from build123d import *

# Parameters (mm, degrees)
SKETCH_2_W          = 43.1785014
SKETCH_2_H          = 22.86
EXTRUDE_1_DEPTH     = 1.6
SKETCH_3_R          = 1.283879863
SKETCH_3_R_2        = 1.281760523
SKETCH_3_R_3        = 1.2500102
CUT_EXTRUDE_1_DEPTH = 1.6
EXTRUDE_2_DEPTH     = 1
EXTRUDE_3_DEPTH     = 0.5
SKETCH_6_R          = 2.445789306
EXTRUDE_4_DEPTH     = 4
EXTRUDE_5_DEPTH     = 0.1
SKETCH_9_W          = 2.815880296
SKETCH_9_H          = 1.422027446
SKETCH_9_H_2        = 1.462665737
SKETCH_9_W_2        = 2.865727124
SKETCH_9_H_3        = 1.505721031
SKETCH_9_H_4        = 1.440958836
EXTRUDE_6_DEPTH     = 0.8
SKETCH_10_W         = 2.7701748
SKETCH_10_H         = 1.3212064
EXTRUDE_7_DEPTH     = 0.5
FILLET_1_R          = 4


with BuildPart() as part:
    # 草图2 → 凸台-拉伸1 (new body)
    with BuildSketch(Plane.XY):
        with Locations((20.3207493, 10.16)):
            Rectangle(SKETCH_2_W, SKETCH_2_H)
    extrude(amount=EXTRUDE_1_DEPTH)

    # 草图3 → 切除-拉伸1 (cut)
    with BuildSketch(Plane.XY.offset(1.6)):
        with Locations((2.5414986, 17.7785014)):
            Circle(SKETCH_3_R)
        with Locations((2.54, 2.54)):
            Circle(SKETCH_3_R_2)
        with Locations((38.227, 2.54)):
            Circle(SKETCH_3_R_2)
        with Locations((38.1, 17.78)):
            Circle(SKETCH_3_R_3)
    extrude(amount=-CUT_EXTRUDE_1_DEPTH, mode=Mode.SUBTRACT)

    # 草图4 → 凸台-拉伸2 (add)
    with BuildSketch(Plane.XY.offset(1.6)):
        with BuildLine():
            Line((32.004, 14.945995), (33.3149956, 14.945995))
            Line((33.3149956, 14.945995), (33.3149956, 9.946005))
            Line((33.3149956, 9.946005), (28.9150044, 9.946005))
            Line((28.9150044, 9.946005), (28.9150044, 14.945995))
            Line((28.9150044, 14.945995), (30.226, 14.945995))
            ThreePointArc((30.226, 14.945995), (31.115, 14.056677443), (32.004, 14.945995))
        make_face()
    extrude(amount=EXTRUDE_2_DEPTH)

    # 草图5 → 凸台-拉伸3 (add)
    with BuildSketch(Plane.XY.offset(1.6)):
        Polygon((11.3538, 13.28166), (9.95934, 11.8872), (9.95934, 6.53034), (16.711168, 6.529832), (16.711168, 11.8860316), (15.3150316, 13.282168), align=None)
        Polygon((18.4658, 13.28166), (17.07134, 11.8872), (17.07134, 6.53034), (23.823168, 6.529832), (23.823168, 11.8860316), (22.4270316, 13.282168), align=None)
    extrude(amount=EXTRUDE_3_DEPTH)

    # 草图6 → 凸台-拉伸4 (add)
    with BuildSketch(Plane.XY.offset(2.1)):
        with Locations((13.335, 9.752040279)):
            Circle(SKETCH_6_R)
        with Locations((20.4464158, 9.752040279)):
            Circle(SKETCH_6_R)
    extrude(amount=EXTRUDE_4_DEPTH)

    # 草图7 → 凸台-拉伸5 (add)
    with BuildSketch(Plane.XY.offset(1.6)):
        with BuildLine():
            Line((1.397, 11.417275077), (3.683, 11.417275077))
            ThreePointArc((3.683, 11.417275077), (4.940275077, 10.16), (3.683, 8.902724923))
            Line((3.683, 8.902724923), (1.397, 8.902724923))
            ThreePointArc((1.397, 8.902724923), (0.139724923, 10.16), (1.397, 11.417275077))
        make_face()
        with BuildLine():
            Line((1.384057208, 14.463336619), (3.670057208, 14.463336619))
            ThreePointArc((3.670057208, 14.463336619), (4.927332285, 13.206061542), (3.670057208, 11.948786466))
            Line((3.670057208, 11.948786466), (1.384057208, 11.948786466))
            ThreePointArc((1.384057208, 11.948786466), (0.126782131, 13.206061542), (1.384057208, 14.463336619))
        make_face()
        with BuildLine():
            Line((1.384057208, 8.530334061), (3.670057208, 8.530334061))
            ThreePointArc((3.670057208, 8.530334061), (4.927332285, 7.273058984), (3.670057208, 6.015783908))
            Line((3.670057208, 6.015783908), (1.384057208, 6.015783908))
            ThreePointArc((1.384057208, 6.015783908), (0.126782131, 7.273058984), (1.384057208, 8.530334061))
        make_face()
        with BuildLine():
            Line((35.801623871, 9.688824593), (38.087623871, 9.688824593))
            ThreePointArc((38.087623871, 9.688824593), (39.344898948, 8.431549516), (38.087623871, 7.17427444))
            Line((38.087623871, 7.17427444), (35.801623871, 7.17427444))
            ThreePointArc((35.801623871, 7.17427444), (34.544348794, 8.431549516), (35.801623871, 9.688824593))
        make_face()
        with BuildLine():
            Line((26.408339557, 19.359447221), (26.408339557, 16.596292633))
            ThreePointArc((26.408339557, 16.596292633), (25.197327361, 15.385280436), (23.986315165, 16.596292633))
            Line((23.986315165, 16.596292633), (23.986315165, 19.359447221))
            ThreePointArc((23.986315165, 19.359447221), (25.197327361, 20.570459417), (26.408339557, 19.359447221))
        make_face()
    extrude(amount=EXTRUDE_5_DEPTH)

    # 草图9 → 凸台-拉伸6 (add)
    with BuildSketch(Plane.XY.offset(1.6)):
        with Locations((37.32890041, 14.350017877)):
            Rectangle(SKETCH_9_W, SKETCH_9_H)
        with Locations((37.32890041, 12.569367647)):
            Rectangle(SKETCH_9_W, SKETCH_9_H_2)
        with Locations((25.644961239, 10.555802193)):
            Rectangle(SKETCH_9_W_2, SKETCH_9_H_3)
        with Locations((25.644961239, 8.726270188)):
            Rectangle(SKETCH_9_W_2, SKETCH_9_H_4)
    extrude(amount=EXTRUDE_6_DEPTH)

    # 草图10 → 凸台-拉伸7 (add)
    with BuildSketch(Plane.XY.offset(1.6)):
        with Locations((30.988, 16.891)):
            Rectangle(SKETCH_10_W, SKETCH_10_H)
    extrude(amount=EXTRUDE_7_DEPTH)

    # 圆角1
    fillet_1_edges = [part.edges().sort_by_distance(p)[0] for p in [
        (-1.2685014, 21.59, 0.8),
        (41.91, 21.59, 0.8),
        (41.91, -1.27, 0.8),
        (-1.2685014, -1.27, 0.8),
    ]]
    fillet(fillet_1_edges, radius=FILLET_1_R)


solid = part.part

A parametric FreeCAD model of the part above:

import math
import FreeCAD as App
import Part
import Sketcher
from FreeCAD import Vector
Q = App.Units.Quantity


def edges_at(feature, points):
    """Names of the edges that pass closest to the given points."""
    edges = feature.Shape.Edges
    near = lambda p: min(range(len(edges)), key=lambda i: edges[i].distToShape(Part.Vertex(*p))[0])
    return sorted({f"Edge{near(p) + 1}" for p in points})


def add_polygon(sketch, points):
    """Adds a closed chain of lines whose ends are joined by coincident constraints."""
    first, n = sketch.GeometryCount, len(points)
    for a, b in zip(points, points[1:] + points[:1]):
        sketch.addGeometry(Part.LineSegment(App.Vector(*a, 0), App.Vector(*b, 0)), False)
    for i in range(n):
        sketch.addConstraint(Sketcher.Constraint("Coincident", first + i, 2, first + (i + 1) % n, 1))

doc = App.newDocument("Part")
params = doc.addObject("Spreadsheet::Sheet", "Params")
for row, (alias, value) in enumerate([
    ("sketch1_height", "22.86 mm"),
    ("pad1_length", "1.6 mm"),
    ("pocket1_length", "1.6 mm"),
    ("pad2_length", "1 mm"),
    ("pad3_length", "0.5 mm"),
    ("pad4_length", "4 mm"),
    ("pad5_length", "0.1 mm"),
    ("pad6_length", "0.8 mm"),
    ("pad7_length", "0.5 mm"),
    ("fillet_radius", "4 mm"),
], start=1):
    params.set(f"A{row}", alias)
    params.set(f"B{row}", "=" + value)
    params.setAlias(f"B{row}", alias)

body = doc.addObject("PartDesign::Body", "Body")

sketch1 = body.newObject("Sketcher::SketchObject", "Sketch")
sketch1.AttachmentSupport = (doc.getObject("XY_Plane"), [""])
sketch1.MapMode = "FlatFace"
add_polygon(sketch1, [(-1, 22), (-1, -1), (42, -1), (42, 22)])
sketch1.addConstraint([
    Sketcher.Constraint("Vertical", 0),
    Sketcher.Constraint("Horizontal", 1),
    Sketcher.Constraint("Vertical", 2),
    Sketcher.Constraint("Horizontal", 3),
    Sketcher.Constraint("DistanceY", 0, 2, 0, 1, 22.86),
    Sketcher.Constraint("DistanceY", 0, 2, -1, 1, 1.27),
    Sketcher.Constraint("DistanceX", -1, 1, 1, 2, 41.91),
    Sketcher.Constraint("DistanceX", 1, 1, 1, 2, 43.178501),
])
sketch1.setExpression("Constraints[8]", "Params.sketch1_height")
pad1 = body.newObject("PartDesign::Pad", "Pad")
pad1.Profile = sketch1
pad1.setExpression("Length", "Params.pad1_length")

sketch2 = body.newObject("Sketcher::SketchObject", "Sketch001")
sketch2.AttachmentSupport = (doc.getObject("XY_Plane"), [""])
sketch2.MapMode = "FlatFace"
sketch2.AttachmentOffset = App.Placement(Vector(0, 0, 1.6), App.Rotation())
sketch2.addGeometry([
    Part.Circle(Vector(2.5, 17.8, 0), Vector(0, 0, 1), 1.3),
    Part.Circle(Vector(2.5, 2.5, 0), Vector(0, 0, 1), 1.3),
    Part.Circle(Vector(38.2, 2.5, 0), Vector(0, 0, 1), 1.3),
    Part.Circle(Vector(38.1, 17.8, 0), Vector(0, 0, 1), 1.3),
], False)
sketch2.addConstraint([
    Sketcher.Constraint("Equal", 1, 2),
    Sketcher.Constraint("Horizontal", 1, 3, 2, 3),
    Sketcher.Constraint("DistanceX", -1, 1, 3, 3, 38.1),
    Sketcher.Constraint("Diameter", 0, 2.56776),
    Sketcher.Constraint("Diameter", 1, 2.563521),
    Sketcher.Constraint("Diameter", 3, 2.50002),
    Sketcher.Constraint("DistanceX", -1, 1, 1, 3, 2.54),
    Sketcher.Constraint("DistanceY", -1, 1, 1, 3, 2.54),
    Sketcher.Constraint("DistanceY", -1, 1, 3, 3, 17.78),
    Sketcher.Constraint("DistanceX", -1, 1, 2, 3, 38.227),
    Sketcher.Constraint("DistanceX", -1, 1, 0, 3, 2.541499),
    Sketcher.Constraint("DistanceY", -1, 1, 0, 3, 17.778501),
])
pocket1 = body.newObject("PartDesign::Pocket", "Pocket")
pocket1.Profile = sketch2
pocket1.setExpression("Length", "Params.pocket1_length")

sketch3 = body.newObject("Sketcher::SketchObject", "Sketch002")
sketch3.AttachmentSupport = (doc.getObject("XY_Plane"), [""])
sketch3.MapMode = "FlatFace"
sketch3.AttachmentOffset = App.Placement(Vector(0, 0, 1.6), App.Rotation())
sketch3.addGeometry([
    Part.LineSegment(Vector(33.3, 14.9, 0), Vector(32, 14.9, 0)),
    Part.ArcOfCircle(Part.Circle(Vector(31.1, 14.9, 0), Vector(0, 0, 1), 0.9), math.radians(180), math.radians(360)),
    Part.LineSegment(Vector(30.2, 14.9, 0), Vector(28.9, 14.9, 0)),
    Part.LineSegment(Vector(28.9, 14.9, 0), Vector(28.9, 9.9, 0)),
    Part.LineSegment(Vector(28.9, 9.9, 0), Vector(33.3, 9.9, 0)),
    Part.LineSegment(Vector(33.3, 9.9, 0), Vector(33.3, 14.9, 0)),
], False)
sketch3.addConstraint([
    Sketcher.Constraint("Coincident", 0, 2, 1, 2),
    Sketcher.Constraint("Coincident", 1, 1, 2, 1),
    Sketcher.Constraint("Coincident", 2, 2, 3, 1),
    Sketcher.Constraint("Coincident", 3, 2, 4, 1),
    Sketcher.Constraint("Coincident", 4, 2, 5, 1),
    Sketcher.Constraint("Coincident", 5, 2, 0, 1),
    Sketcher.Constraint("Horizontal", 0),
    Sketcher.Constraint("Horizontal", 2),
    Sketcher.Constraint("Vertical", 3),
    Sketcher.Constraint("Horizontal", 4),
    Sketcher.Constraint("Vertical", 5),
    Sketcher.Constraint("Horizontal", 0, 2, 1, 1),
    Sketcher.Constraint("Equal", 0, 2),
    Sketcher.Constraint("Radius", 1, 0.889),
    Sketcher.Constraint("DistanceX", -1, 1, 1, 3, 31.115),
    Sketcher.Constraint("DistanceX", 4, 1, 4, 2, 4.399991),
    Sketcher.Constraint("DistanceY", 3, 2, 3, 1, 4.99999),
    Sketcher.Constraint("DistanceY", -1, 1, 1, 3, 14.945678),
    Sketcher.Constraint("DistanceY", -1, 1, 0, 2, 14.945995),
])
pad2 = body.newObject("PartDesign::Pad", "Pad001")
pad2.Profile = sketch3
pad2.setExpression("Length", "Params.pad2_length")

sketch4 = body.newObject("Sketcher::SketchObject", "Sketch003")
sketch4.AttachmentSupport = (doc.getObject("XY_Plane"), [""])
sketch4.MapMode = "FlatFace"
sketch4.AttachmentOffset = App.Placement(Vector(0, 0, 1.6), App.Rotation())
add_polygon(sketch4, [(11.4, 13.3), (10, 11.9), (10, 6.5), (16.7, 6.5), (16.7, 11.9), (15.3, 13.3)])
add_polygon(sketch4, [(18.5, 13.3), (17.1, 11.9), (17.1, 6.5), (23.8, 6.5), (23.8, 11.9), (22.4, 13.3)])
sketch4.addConstraint([
    Sketcher.Constraint("Vertical", 1),
    Sketcher.Constraint("Vertical", 3),
    Sketcher.Constraint("Vertical", 7),
    Sketcher.Constraint("Vertical", 9),
    Sketcher.Constraint("Perpendicular", 0, 4),
    Sketcher.Constraint("Perpendicular", 4, 6),
    Sketcher.Constraint("Parallel", 2, 8),
    Sketcher.Constraint("Perpendicular", 6, 10),
    Sketcher.Constraint("Parallel", 5, 11),
    Sketcher.Constraint("Horizontal", 0, 2, 6, 2),
    Sketcher.Constraint("Horizontal", 1, 2, 7, 2),
    Sketcher.Constraint("Horizontal", 3, 2, 9, 2),
    Sketcher.Constraint("Horizontal", 4, 2, 10, 2),
    Sketcher.Constraint("Equal", 2, 8),
    Sketcher.Constraint("Angle", 0, Q("-135 deg")),
    Sketcher.Constraint("DistanceY", 3, 1, 3, 2, 5.3562),
    Sketcher.Constraint("DistanceX", 0, 2, 6, 2, 7.112),
    Sketcher.Constraint("DistanceY", 1, 2, 1, 1, 5.35686),
    Sketcher.Constraint("DistanceY", -1, 1, 0, 2, 11.8872),
    Sketcher.Constraint("DistanceX", -1, 1, 5, 2, 11.3538),
    Sketcher.Constraint("Distance", 2, 6.751828),
    Sketcher.Constraint("Distance", 5, 3.961232),
    Sketcher.Constraint("DistanceX", -1, 1, 0, 2, 9.95934),
    Sketcher.Constraint("DistanceY", -1, 1, 3, 2, 11.886032),
])
pad3 = body.newObject("PartDesign::Pad", "Pad002")
pad3.Profile = sketch4
pad3.setExpression("Length", "Params.pad3_length")

sketch5 = body.newObject("Sketcher::SketchObject", "Sketch004")
sketch5.AttachmentSupport = (doc.getObject("XY_Plane"), [""])
sketch5.MapMode = "FlatFace"
sketch5.AttachmentOffset = App.Placement(Vector(0, 0, 2.1), App.Rotation())
sketch5.addGeometry([
    Part.Circle(Vector(13.3, 9.8, 0), Vector(0, 0, 1), 2.4),
    Part.Circle(Vector(20.4, 9.8, 0), Vector(0, 0, 1), 2.4),
], False)
sketch5.addConstraint([
    Sketcher.Constraint("Equal", 0, 1),
    Sketcher.Constraint("Horizontal", 0, 3, 1, 3),
    Sketcher.Constraint("Diameter", 0, 4.891579),
    Sketcher.Constraint("DistanceX", -1, 1, 0, 3, 13.335),
    Sketcher.Constraint("DistanceY", -1, 1, 0, 3, 9.75204),
    Sketcher.Constraint("DistanceX", -1, 1, 1, 3, 20.446416),
])
pad4 = body.newObject("PartDesign::Pad", "Pad003")
pad4.Profile = sketch5
pad4.setExpression("Length", "Params.pad4_length")

sketch6 = body.newObject("Sketcher::SketchObject", "Sketch005")
sketch6.AttachmentSupport = (doc.getObject("XY_Plane"), [""])
sketch6.MapMode = "FlatFace"
sketch6.AttachmentOffset = App.Placement(Vector(0, 0, 1.6), App.Rotation())
sketch6.addGeometry([
    Part.LineSegment(Vector(3.7, 11.4, 0), Vector(1.4, 11.4, 0)),
    Part.ArcOfCircle(Part.Circle(Vector(1.4, 10.2, 0), Vector(0, 0, 1), 1.3), math.radians(90), math.radians(270)),
    Part.LineSegment(Vector(1.4, 8.9, 0), Vector(3.7, 8.9, 0)),
    Part.ArcOfCircle(Part.Circle(Vector(3.7, 10.2, 0), Vector(0, 0, 1), 1.3), math.radians(-90), math.radians(90)),
    Part.LineSegment(Vector(3.7, 14.5, 0), Vector(1.4, 14.5, 0)),
    Part.ArcOfCircle(Part.Circle(Vector(1.4, 13.2, 0), Vector(0, 0, 1), 1.3), math.radians(90), math.radians(270)),
    Part.LineSegment(Vector(1.4, 11.9, 0), Vector(3.7, 11.9, 0)),
    Part.ArcOfCircle(Part.Circle(Vector(3.7, 13.2, 0), Vector(0, 0, 1), 1.3), math.radians(-90), math.radians(90)),
    Part.LineSegment(Vector(3.7, 8.5, 0), Vector(1.4, 8.5, 0)),
    Part.ArcOfCircle(Part.Circle(Vector(1.4, 7.3, 0), Vector(0, 0, 1), 1.3), math.radians(90), math.radians(270)),
    Part.LineSegment(Vector(1.4, 6, 0), Vector(3.7, 6, 0)),
    Part.ArcOfCircle(Part.Circle(Vector(3.7, 7.3, 0), Vector(0, 0, 1), 1.3), math.radians(-90), math.radians(90)),
    Part.LineSegment(Vector(38.1, 9.7, 0), Vector(35.8, 9.7, 0)),
    Part.ArcOfCircle(Part.Circle(Vector(35.8, 8.4, 0), Vector(0, 0, 1), 1.3), math.radians(90), math.radians(270)),
    Part.LineSegment(Vector(35.8, 7.2, 0), Vector(38.1, 7.2, 0)),
    Part.ArcOfCircle(Part.Circle(Vector(38.1, 8.4, 0), Vector(0, 0, 1), 1.3), math.radians(-90), math.radians(90)),
    Part.LineSegment(Vector(26.4, 16.6, 0), Vector(26.4, 19.4, 0)),
    Part.ArcOfCircle(Part.Circle(Vector(25.2, 19.4, 0), Vector(0, 0, 1), 1.2), math.radians(0), math.radians(180)),
    Part.LineSegment(Vector(24, 19.4, 0), Vector(24, 16.6, 0)),
    Part.ArcOfCircle(Part.Circle(Vector(25.2, 16.6, 0), Vector(0, 0, 1), 1.2), math.radians(180), math.radians(360)),
], False)
sketch6.addConstraint([
    Sketcher.Constraint("Tangent", 0, 2, 1, 1),
    Sketcher.Constraint("Tangent", 1, 2, 2, 1),
    Sketcher.Constraint("Tangent", 2, 2, 3, 1),
    Sketcher.Constraint("Tangent", 3, 2, 0, 1),
    Sketcher.Constraint("Tangent", 4, 2, 5, 1),
    Sketcher.Constraint("Tangent", 5, 2, 6, 1),
    Sketcher.Constraint("Tangent", 6, 2, 7, 1),
    Sketcher.Constraint("Tangent", 7, 2, 4, 1),
    Sketcher.Constraint("Tangent", 8, 2, 9, 1),
    Sketcher.Constraint("Tangent", 9, 2, 10, 1),
    Sketcher.Constraint("Tangent", 10, 2, 11, 1),
    Sketcher.Constraint("Tangent", 11, 2, 8, 1),
    Sketcher.Constraint("Tangent", 12, 2, 13, 1),
    Sketcher.Constraint("Tangent", 13, 2, 14, 1),
    Sketcher.Constraint("Tangent", 14, 2, 15, 1),
    Sketcher.Constraint("Tangent", 15, 2, 12, 1),
    Sketcher.Constraint("Tangent", 16, 2, 17, 1),
    Sketcher.Constraint("Tangent", 17, 2, 18, 1),
    Sketcher.Constraint("Tangent", 18, 2, 19, 1),
    Sketcher.Constraint("Tangent", 19, 2, 16, 1),
    Sketcher.Constraint("Horizontal", 0),
    Sketcher.Constraint("Horizontal", 2),
    Sketcher.Constraint("Horizontal", 4),
    Sketcher.Constraint("Horizontal", 6),
    Sketcher.Constraint("Horizontal", 8),
    Sketcher.Constraint("Horizontal", 10),
    Sketcher.Constraint("Horizontal", 12),
    Sketcher.Constraint("Horizontal", 14),
    Sketcher.Constraint("Vertical", 16),
    Sketcher.Constraint("Vertical", 18),
    Sketcher.Constraint("Equal", 3, 5),
    Sketcher.Constraint("Equal", 7, 9),
    Sketcher.Constraint("Equal", 11, 13),
    Sketcher.Constraint("Vertical", 5, 3, 9, 3),
    Sketcher.Constraint("Vertical", 7, 3, 11, 3),
    Sketcher.Constraint("Equal", 2, 4),
    Sketcher.Constraint("Equal", 10, 12),
    Sketcher.Constraint("DistanceX", 0, 2, 0, 1, 2.286),
    Sketcher.Constraint("DistanceY", -1, 1, 1, 3, 10.16),
    Sketcher.Constraint("DistanceX", -1, 1, 1, 3, 1.397),
    Sketcher.Constraint("Radius", 1, 1.257275),
    Sketcher.Constraint("Radius", 17, 1.211012),
    Sketcher.Constraint("DistanceY", 16, 1, 16, 2, 2.763155),
    Sketcher.Constraint("DistanceY", -1, 1, 5, 3, 13.206062),
    Sketcher.Constraint("DistanceY", -1, 1, 9, 3, 7.273059),
    Sketcher.Constraint("DistanceY", -1, 1, 13, 3, 8.43155),
    Sketcher.Constraint("DistanceX", -1, 1, 16, 2, 26.40834),
    Sketcher.Constraint("DistanceX", 7, 3, 17, 3, 21.52727),
    Sketcher.Constraint("DistanceY", 7, 3, 19, 3, 3.390231),
    Sketcher.Constraint("DistanceX", 17, 2, 12, 2, 11.815309),
])
pad5 = body.newObject("PartDesign::Pad", "Pad004")
pad5.Profile = sketch6
pad5.setExpression("Length", "Params.pad5_length")

sketch7 = body.newObject("Sketcher::SketchObject", "Sketch006")
sketch7.AttachmentSupport = (doc.getObject("XY_Plane"), [""])
sketch7.MapMode = "FlatFace"
sketch7.AttachmentOffset = App.Placement(Vector(0, 0, 1.6), App.Rotation())
add_polygon(sketch7, [(35.9, 15.1), (35.9, 13.6), (38.7, 13.6), (38.7, 15.1)])
add_polygon(sketch7, [(35.9, 13.3), (35.9, 11.8), (38.7, 11.8), (38.7, 13.3)])
add_polygon(sketch7, [(24.2, 11.3), (24.2, 9.8), (27.1, 9.8), (27.1, 11.3)])
add_polygon(sketch7, [(24.2, 9.4), (24.2, 8), (27.1, 8), (27.1, 9.4)])
sketch7.addConstraint([
    Sketcher.Constraint("Vertical", 0),
    Sketcher.Constraint("Horizontal", 1),
    Sketcher.Constraint("Vertical", 2),
    Sketcher.Constraint("Horizontal", 3),
    Sketcher.Constraint("Vertical", 4),
    Sketcher.Constraint("Horizontal", 5),
    Sketcher.Constraint("Vertical", 6),
    Sketcher.Constraint("Horizontal", 7),
    Sketcher.Constraint("Vertical", 8),
    Sketcher.Constraint("Horizontal", 9),
    Sketcher.Constraint("Vertical", 10),
    Sketcher.Constraint("Horizontal", 11),
    Sketcher.Constraint("Vertical", 12),
    Sketcher.Constraint("Horizontal", 13),
    Sketcher.Constraint("Vertical", 14),
    Sketcher.Constraint("Horizontal", 15),
    Sketcher.Constraint("Vertical", 3, 2, 4, 2),
    Sketcher.Constraint("Vertical", 2, 2, 5, 2),
    Sketcher.Constraint("Vertical", 11, 2, 12, 2),
    Sketcher.Constraint("Vertical", 10, 2, 13, 2),
    Sketcher.Constraint("DistanceX", 1, 1, 1, 2, 2.81588),
    Sketcher.Constraint("DistanceY", 8, 2, 8, 1, 1.505721),
    Sketcher.Constraint("DistanceY", 12, 2, 12, 1, 1.440959),
    Sketcher.Constraint("DistanceY", -1, 1, 6, 2, 13.300701),
    Sketcher.Constraint("DistanceX", 9, 1, 9, 2, 2.865727),
    Sketcher.Constraint("DistanceY", 0, 2, 0, 1, 1.422027),
    Sketcher.Constraint("DistanceY", 4, 2, 4, 1, 1.462666),
    Sketcher.Constraint("DistanceX", -1, 1, 0, 2, 35.92096),
    Sketcher.Constraint("DistanceY", -1, 1, 2, 2, 15.061032),
    Sketcher.Constraint("DistanceY", -1, 1, 8, 2, 9.802942),
    Sketcher.Constraint("DistanceY", -1, 1, 12, 2, 8.005791),
    Sketcher.Constraint("DistanceX", -1, 1, 8, 2, 24.212098),
])
pad6 = body.newObject("PartDesign::Pad", "Pad005")
pad6.Profile = sketch7
pad6.setExpression("Length", "Params.pad6_length")

sketch8 = body.newObject("Sketcher::SketchObject", "Sketch007")
sketch8.AttachmentSupport = (doc.getObject("XY_Plane"), [""])
sketch8.MapMode = "FlatFace"
sketch8.AttachmentOffset = App.Placement(Vector(0, 0, 1.6), App.Rotation())
add_polygon(sketch8, [(29.6, 17.6), (29.6, 16.2), (32.4, 16.2), (32.4, 17.6)])
sketch8.addConstraint([
    Sketcher.Constraint("Vertical", 0),
    Sketcher.Constraint("Horizontal", 1),
    Sketcher.Constraint("Vertical", 2),
    Sketcher.Constraint("Horizontal", 3),
    Sketcher.Constraint("DistanceX", 1, 1, 1, 2, 2.770175),
    Sketcher.Constraint("DistanceY", 0, 2, 0, 1, 1.321206),
    Sketcher.Constraint("DistanceX", -1, 1, 0, 2, 29.602913),
    Sketcher.Constraint("DistanceY", -1, 1, 0, 2, 16.230397),
])
pad7 = body.newObject("PartDesign::Pad", "Pad006")
pad7.Profile = sketch8
pad7.setExpression("Length", "Params.pad7_length")
doc.recompute()

fillet = body.newObject("PartDesign::Fillet", "Fillet")
fillet.Base = (pad7, edges_at(pad7, [
    (-1.269, 21.59, 0.8),
    (41.91, 21.59, 0.8),
    (41.91, -1.27, 0.8),
    (-1.269, -1.27, 0.8),
]))
fillet.setExpression("Radius", "Params.fillet_radius")

doc.recompute()
